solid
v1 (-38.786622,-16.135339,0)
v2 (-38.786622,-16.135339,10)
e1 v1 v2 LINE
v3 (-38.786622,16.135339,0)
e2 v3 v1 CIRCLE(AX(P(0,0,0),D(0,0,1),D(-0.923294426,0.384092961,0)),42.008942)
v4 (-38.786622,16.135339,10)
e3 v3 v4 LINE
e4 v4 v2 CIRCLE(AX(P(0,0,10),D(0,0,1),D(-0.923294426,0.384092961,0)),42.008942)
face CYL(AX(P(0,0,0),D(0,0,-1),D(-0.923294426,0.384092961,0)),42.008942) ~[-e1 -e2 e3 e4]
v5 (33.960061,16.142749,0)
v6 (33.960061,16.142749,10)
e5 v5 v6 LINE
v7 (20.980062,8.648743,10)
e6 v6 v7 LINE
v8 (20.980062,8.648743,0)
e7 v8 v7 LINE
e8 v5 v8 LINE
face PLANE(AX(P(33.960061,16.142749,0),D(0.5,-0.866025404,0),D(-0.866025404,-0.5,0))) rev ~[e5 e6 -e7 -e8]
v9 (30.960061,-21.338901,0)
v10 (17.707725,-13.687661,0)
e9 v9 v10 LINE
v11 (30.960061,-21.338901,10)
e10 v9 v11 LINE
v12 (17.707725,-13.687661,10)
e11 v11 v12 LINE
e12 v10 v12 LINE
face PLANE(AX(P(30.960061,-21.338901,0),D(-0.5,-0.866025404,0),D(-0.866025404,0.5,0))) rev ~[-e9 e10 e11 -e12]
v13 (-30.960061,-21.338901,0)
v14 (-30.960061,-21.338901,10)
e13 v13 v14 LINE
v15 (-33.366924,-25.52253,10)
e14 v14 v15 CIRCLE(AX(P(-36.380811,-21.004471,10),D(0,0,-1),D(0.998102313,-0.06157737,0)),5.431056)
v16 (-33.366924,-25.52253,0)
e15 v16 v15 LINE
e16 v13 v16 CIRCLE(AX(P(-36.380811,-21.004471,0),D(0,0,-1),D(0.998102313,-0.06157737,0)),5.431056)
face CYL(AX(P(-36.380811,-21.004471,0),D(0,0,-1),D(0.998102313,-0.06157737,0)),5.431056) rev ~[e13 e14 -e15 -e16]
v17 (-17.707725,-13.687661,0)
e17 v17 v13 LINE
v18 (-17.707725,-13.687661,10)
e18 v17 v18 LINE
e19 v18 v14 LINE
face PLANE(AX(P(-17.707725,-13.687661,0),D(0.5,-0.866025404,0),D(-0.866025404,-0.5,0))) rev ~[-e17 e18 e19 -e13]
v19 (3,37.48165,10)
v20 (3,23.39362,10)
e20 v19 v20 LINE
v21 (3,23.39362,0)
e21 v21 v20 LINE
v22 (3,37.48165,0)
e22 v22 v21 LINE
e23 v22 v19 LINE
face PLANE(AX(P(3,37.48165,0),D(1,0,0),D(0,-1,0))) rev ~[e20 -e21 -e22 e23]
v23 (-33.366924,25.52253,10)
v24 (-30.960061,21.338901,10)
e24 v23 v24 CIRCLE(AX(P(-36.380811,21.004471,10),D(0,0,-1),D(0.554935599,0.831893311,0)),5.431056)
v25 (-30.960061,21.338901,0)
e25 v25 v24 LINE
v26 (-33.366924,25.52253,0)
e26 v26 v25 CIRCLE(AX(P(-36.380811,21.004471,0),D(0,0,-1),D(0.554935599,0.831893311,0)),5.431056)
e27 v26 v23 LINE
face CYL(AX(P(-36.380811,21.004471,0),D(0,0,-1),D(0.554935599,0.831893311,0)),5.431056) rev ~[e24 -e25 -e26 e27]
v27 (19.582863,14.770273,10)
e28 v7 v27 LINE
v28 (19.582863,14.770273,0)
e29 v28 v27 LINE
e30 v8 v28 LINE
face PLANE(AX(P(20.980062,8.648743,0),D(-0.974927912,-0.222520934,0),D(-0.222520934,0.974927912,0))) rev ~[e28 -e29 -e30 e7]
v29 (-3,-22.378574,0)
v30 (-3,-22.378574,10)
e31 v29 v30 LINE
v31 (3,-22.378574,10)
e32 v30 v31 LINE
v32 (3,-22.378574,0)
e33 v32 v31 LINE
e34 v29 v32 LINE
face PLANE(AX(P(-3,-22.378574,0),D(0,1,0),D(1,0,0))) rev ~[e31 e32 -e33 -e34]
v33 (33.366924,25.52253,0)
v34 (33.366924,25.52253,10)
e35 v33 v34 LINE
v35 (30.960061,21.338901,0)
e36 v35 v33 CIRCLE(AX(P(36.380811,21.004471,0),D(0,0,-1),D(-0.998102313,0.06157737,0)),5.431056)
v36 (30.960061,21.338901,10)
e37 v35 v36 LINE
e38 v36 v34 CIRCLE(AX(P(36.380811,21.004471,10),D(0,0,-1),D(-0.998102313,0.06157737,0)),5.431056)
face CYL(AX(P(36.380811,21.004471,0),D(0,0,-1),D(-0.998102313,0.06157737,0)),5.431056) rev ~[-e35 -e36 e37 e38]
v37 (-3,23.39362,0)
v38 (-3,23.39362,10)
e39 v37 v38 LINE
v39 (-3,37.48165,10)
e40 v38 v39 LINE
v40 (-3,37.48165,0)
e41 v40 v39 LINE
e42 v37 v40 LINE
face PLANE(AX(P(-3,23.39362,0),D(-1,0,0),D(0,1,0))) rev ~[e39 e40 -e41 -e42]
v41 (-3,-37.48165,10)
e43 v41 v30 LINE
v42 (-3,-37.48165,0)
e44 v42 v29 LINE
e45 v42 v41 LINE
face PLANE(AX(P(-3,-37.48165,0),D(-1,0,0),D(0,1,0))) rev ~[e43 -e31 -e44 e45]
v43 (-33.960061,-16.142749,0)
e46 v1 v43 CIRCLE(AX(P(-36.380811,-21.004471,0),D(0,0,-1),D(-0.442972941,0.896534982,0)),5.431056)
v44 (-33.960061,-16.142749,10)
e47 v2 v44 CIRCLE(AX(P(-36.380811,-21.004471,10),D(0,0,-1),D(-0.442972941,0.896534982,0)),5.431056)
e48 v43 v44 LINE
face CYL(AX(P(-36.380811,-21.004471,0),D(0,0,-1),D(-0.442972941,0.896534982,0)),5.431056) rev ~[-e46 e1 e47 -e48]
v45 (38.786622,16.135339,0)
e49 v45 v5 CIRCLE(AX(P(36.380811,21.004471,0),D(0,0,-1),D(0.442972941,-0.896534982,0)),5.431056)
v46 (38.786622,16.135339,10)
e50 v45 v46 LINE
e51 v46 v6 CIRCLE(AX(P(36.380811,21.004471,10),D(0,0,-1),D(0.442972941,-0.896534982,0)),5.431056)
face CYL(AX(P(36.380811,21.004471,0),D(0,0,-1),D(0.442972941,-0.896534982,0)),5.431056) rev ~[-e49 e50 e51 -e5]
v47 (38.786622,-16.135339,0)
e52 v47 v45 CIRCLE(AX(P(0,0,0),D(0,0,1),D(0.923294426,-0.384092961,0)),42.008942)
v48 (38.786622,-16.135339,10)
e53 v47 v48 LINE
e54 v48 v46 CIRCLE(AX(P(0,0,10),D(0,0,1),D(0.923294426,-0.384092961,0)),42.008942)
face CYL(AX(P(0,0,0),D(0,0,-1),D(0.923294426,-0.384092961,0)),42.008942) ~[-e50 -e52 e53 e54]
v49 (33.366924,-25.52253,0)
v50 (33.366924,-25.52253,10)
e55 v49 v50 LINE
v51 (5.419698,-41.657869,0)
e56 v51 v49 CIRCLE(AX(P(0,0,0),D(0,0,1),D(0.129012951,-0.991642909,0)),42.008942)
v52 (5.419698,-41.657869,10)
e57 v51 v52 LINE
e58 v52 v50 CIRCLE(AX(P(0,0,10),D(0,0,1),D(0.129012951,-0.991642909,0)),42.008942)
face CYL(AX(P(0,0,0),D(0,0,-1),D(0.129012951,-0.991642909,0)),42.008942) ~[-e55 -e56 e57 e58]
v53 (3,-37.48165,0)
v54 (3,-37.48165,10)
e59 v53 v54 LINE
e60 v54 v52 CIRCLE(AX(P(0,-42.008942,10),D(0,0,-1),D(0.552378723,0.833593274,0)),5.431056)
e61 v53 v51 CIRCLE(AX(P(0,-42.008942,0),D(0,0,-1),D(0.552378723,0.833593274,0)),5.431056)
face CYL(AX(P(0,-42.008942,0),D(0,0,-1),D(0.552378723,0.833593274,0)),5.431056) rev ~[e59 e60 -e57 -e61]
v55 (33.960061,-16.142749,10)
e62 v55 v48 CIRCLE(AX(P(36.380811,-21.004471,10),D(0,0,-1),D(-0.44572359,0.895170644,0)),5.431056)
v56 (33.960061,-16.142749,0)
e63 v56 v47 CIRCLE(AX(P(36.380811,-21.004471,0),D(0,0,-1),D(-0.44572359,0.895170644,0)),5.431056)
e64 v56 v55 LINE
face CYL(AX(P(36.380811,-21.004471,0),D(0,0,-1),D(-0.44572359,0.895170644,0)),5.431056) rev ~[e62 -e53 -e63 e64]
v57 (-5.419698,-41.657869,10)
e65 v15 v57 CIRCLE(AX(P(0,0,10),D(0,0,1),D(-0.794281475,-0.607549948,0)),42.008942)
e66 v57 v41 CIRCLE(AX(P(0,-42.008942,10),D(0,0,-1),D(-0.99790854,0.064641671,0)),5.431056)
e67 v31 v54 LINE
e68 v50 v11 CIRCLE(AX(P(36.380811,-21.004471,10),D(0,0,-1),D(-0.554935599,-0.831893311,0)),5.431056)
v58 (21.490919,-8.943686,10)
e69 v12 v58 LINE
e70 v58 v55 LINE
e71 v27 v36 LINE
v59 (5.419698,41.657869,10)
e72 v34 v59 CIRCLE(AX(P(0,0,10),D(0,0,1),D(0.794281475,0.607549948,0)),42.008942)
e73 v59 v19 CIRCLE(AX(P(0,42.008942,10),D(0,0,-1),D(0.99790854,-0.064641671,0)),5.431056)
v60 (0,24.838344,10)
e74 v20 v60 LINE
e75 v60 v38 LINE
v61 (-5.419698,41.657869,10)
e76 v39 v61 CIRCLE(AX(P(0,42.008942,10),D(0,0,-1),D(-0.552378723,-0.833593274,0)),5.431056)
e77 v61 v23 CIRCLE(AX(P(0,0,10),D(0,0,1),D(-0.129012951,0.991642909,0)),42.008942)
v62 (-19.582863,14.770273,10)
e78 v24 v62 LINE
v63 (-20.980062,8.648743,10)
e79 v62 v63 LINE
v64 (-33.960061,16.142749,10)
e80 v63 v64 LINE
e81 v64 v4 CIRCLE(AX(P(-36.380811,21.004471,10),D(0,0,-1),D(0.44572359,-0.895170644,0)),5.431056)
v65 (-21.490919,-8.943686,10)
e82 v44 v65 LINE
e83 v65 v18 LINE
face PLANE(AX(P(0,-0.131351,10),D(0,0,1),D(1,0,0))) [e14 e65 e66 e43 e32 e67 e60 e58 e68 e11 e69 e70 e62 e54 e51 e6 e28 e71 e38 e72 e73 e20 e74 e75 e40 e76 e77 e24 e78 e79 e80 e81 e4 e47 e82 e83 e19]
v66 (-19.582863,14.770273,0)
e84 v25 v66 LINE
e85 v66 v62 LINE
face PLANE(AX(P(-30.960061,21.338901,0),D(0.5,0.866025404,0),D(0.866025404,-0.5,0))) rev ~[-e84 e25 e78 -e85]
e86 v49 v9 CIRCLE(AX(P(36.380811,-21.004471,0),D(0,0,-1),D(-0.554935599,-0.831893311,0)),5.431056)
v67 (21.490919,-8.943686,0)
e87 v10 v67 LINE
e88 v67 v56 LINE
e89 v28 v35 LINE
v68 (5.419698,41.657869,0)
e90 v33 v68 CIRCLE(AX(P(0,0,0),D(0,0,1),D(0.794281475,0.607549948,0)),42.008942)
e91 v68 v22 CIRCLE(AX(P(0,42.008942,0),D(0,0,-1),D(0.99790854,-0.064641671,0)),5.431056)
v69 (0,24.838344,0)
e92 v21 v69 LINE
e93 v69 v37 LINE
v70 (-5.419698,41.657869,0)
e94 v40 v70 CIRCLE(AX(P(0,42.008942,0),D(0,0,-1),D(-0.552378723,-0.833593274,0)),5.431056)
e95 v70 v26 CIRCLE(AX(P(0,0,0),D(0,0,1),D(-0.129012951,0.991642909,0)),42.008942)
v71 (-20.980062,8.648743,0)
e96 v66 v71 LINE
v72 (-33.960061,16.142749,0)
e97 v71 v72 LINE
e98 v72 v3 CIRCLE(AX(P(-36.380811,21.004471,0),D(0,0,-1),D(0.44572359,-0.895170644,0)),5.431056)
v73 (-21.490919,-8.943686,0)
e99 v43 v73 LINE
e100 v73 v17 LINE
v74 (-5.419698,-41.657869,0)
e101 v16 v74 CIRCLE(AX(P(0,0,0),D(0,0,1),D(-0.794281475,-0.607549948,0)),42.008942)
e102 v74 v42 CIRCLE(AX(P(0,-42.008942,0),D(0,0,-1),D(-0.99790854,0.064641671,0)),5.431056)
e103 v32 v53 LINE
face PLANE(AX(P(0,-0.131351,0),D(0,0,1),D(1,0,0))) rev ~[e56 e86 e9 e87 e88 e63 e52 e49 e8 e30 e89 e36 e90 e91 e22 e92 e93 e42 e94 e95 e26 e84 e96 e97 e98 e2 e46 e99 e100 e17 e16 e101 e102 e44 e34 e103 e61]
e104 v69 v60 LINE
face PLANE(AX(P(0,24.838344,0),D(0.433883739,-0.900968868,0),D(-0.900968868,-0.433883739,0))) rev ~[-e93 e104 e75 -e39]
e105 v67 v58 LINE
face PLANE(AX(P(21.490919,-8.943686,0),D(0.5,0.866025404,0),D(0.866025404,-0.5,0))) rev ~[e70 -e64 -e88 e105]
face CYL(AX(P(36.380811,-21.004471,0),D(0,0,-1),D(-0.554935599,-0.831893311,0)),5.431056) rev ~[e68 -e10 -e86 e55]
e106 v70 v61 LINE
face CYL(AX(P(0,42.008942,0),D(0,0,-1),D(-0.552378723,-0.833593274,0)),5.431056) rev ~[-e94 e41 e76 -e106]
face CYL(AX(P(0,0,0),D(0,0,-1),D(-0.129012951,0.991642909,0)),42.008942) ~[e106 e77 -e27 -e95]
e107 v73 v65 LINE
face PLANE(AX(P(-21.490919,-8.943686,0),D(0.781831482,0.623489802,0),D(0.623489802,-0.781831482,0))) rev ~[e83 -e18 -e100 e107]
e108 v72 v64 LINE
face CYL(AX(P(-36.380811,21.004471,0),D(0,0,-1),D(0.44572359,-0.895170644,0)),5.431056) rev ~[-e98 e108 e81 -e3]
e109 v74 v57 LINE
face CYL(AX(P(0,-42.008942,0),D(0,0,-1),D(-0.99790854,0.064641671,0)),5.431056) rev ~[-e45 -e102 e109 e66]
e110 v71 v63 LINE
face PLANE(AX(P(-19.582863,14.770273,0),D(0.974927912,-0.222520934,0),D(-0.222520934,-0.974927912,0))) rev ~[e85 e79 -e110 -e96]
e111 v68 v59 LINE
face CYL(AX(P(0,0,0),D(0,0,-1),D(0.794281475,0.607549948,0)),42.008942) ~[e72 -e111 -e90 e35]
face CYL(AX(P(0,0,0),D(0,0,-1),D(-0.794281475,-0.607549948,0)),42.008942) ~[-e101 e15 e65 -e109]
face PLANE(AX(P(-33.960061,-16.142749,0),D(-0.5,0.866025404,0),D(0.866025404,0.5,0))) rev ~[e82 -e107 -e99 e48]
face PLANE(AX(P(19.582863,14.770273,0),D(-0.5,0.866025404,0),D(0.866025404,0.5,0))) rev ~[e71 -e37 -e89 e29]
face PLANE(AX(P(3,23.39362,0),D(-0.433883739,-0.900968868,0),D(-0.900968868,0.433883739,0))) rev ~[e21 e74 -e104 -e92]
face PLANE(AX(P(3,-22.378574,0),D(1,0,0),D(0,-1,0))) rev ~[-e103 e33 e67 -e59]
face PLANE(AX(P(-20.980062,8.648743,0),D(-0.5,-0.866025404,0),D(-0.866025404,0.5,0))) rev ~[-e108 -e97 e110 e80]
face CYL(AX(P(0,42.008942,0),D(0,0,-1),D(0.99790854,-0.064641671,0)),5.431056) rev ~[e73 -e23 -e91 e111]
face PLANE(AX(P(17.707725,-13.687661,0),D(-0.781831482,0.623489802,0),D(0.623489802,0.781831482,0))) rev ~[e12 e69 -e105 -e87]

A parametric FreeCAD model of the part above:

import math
import FreeCAD as App
import Part
import Sketcher
from FreeCAD import Vector
Q = App.Units.Quantity

doc = App.newDocument("Part")
body = doc.addObject("PartDesign::Body", "Body")

# Sketch on XY plane
sketch1 = body.newObject("Sketcher::SketchObject", "Sketch")
sketch1.AttachmentSupport = (doc.getObject("XY_Plane"), [""])
sketch1.MapMode = "FlatFace"
sketch1.addGeometry(Part.LineSegment(Vector(19.6, 14.8, 0), Vector(31, 21.3, 0)), False)
sketch1.addGeometry(Part.ArcOfCircle(Part.Circle(Vector(36.4, 21, 0), Vector(0, 0, 1), 5.4), math.radians(124), math.radians(176)), False)
sketch1.addGeometry(Part.ArcOfCircle(Part.Circle(Vector(0, 0, 0), Vector(0, 0, 1), 42), math.radians(37), math.radians(83)), False)
sketch1.addGeometry(Part.ArcOfCircle(Part.Circle(Vector(0, 42, 0), Vector(0, 0, 1), 5.4), math.radians(-56), math.radians(-4)), False)
sketch1.addGeometry(Part.LineSegment(Vector(3, 37.5, 0), Vector(3, 23.4, 0)), False)
sketch1.addGeometry(Part.LineSegment(Vector(3, 23.4, 0), Vector(0, 24.8, 0)), False)
sketch1.addGeometry(Part.LineSegment(Vector(0, 24.8, 0), Vector(-3, 23.4, 0)), False)
sketch1.addGeometry(Part.LineSegment(Vector(-3, 23.4, 0), Vector(-3, 37.5, 0)), False)
sketch1.addGeometry(Part.ArcOfCircle(Part.Circle(Vector(0, 42, 0), Vector(0, 0, 1), 5.4), math.radians(-176), math.radians(-124)), False)
sketch1.addGeometry(Part.ArcOfCircle(Part.Circle(Vector(0, 0, 0), Vector(0, 0, 1), 42), math.radians(97), math.radians(143)), False)
sketch1.addGeometry(Part.ArcOfCircle(Part.Circle(Vector(-36.4, 21, 0), Vector(0, 0, 1), 5.4), math.radians(4), math.radians(56)), False)
sketch1.addGeometry(Part.LineSegment(Vector(-31, 21.3, 0), Vector(-19.6, 14.8, 0)), False)
sketch1.addGeometry(Part.LineSegment(Vector(-19.6, 14.8, 0), Vector(-21, 8.6, 0)), False)
sketch1.addGeometry(Part.LineSegment(Vector(-21, 8.6, 0), Vector(-34, 16.1, 0)), False)
sketch1.addGeometry(Part.ArcOfCircle(Part.Circle(Vector(-36.4, 21, 0), Vector(0, 0, 1), 5.4), math.radians(-116), math.radians(-64)), False)
sketch1.addGeometry(Part.ArcOfCircle(Part.Circle(Vector(0, 0, 0), Vector(0, 0, 1), 42), math.radians(157), math.radians(203)), False)
sketch1.addGeometry(Part.ArcOfCircle(Part.Circle(Vector(-36.4, -21, 0), Vector(0, 0, 1), 5.4), math.radians(64), math.radians(116)), False)
sketch1.addGeometry(Part.LineSegment(Vector(-34, -16.1, 0), Vector(-21.5, -8.9, 0)), False)
sketch1.addGeometry(Part.LineSegment(Vector(-21.5, -8.9, 0), Vector(-17.7, -13.7, 0)), False)
sketch1.addGeometry(Part.LineSegment(Vector(-17.7, -13.7, 0), Vector(-31, -21.3, 0)), False)
sketch1.addGeometry(Part.ArcOfCircle(Part.Circle(Vector(-36.4, -21, 0), Vector(0, 0, 1), 5.4), math.radians(-56), math.radians(-4)), False)
sketch1.addGeometry(Part.ArcOfCircle(Part.Circle(Vector(0, 0, 0), Vector(0, 0, 1), 42), math.radians(-143), math.radians(-97)), False)
sketch1.addGeometry(Part.ArcOfCircle(Part.Circle(Vector(0, -42, 0), Vector(0, 0, 1), 5.4), math.radians(124), math.radians(176)), False)
sketch1.addGeometry(Part.LineSegment(Vector(-3, -37.5, 0), Vector(-3, -22.4, 0)), False)
sketch1.addGeometry(Part.LineSegment(Vector(-3, -22.4, 0), Vector(3, -22.4, 0)), False)
sketch1.addGeometry(Part.LineSegment(Vector(3, -22.4, 0), Vector(3, -37.5, 0)), False)
sketch1.addGeometry(Part.ArcOfCircle(Part.Circle(Vector(0, -42, 0), Vector(0, 0, 1), 5.4), math.radians(4), math.radians(56)), False)
sketch1.addGeometry(Part.ArcOfCircle(Part.Circle(Vector(0, 0, 0), Vector(0, 0, 1), 42), math.radians(-83), math.radians(-37)), False)
sketch1.addGeometry(Part.ArcOfCircle(Part.Circle(Vector(36.4, -21, 0), Vector(0, 0, 1), 5.4), math.radians(-176), math.radians(-124)), False)
sketch1.addGeometry(Part.LineSegment(Vector(31, -21.3, 0), Vector(17.7, -13.7, 0)), False)
sketch1.addGeometry(Part.LineSegment(Vector(17.7, -13.7, 0), Vector(21.5, -8.9, 0)), False)
sketch1.addGeometry(Part.LineSegment(Vector(21.5, -8.9, 0), Vector(34, -16.1, 0)), False)
sketch1.addGeometry(Part.ArcOfCircle(Part.Circle(Vector(36.4, -21, 0), Vector(0, 0, 1), 5.4), math.radians(64), math.radians(116)), False)
sketch1.addGeometry(Part.ArcOfCircle(Part.Circle(Vector(0, 0, 0), Vector(0, 0, 1), 42), math.radians(-23), math.radians(23)), False)
sketch1.addGeometry(Part.ArcOfCircle(Part.Circle(Vector(36.4, 21, 0), Vector(0, 0, 1), 5.4), math.radians(-116), math.radians(-64)), False)
sketch1.addGeometry(Part.LineSegment(Vector(34, 16.1, 0), Vector(21, 8.6, 0)), False)
sketch1.addGeometry(Part.LineSegment(Vector(21, 8.6, 0), Vector(19.6, 14.8, 0)), False)
sketch1.addConstraint(Sketcher.Constraint("Coincident", 0, 2, 1, 2))
sketch1.addConstraint(Sketcher.Constraint("Coincident", 1, 1, 2, 1))
sketch1.addConstraint(Sketcher.Constraint("Coincident", 2, 2, 3, 2))
sketch1.addConstraint(Sketcher.Constraint("Coincident", 3, 1, 4, 1))
sketch1.addConstraint(Sketcher.Constraint("Coincident", 4, 2, 5, 1))
sketch1.addConstraint(Sketcher.Constraint("Coincident", 5, 2, 6, 1))
sketch1.addConstraint(Sketcher.Constraint("Coincident", 6, 2, 7, 1))
sketch1.addConstraint(Sketcher.Constraint("Coincident", 7, 2, 8, 2))
sketch1.addConstraint(Sketcher.Constraint("Coincident", 8, 1, 9, 1))
sketch1.addConstraint(Sketcher.Constraint("Coincident", 9, 2, 10, 2))
sketch1.addConstraint(Sketcher.Constraint("Coincident", 10, 1, 11, 1))
sketch1.addConstraint(Sketcher.Constraint("Coincident", 11, 2, 12, 1))
sketch1.addConstraint(Sketcher.Constraint("Coincident", 12, 2, 13, 1))
sketch1.addConstraint(Sketcher.Constraint("Coincident", 13, 2, 14, 2))
sketch1.addConstraint(Sketcher.Constraint("Coincident", 14, 1, 15, 1))
sketch1.addConstraint(Sketcher.Constraint("Coincident", 15, 2, 16, 2))
sketch1.addConstraint(Sketcher.Constraint("Coincident", 16, 1, 17, 1))
sketch1.addConstraint(Sketcher.Constraint("Coincident", 17, 2, 18, 1))
sketch1.addConstraint(Sketcher.Constraint("Coincident", 18, 2, 19, 1))
sketch1.addConstraint(Sketcher.Constraint("Coincident", 19, 2, 20, 2))
sketch1.addConstraint(Sketcher.Constraint("Coincident", 20, 1, 21, 1))
sketch1.addConstraint(Sketcher.Constraint("Coincident", 21, 2, 22, 2))
sketch1.addConstraint(Sketcher.Constraint("Coincident", 22, 1, 23, 1))
sketch1.addConstraint(Sketcher.Constraint("Coincident", 23, 2, 24, 1))
sketch1.addConstraint(Sketcher.Constraint("Coincident", 24, 2, 25, 1))
sketch1.addConstraint(Sketcher.Constraint("Coincident", 25, 2, 26, 2))
sketch1.addConstraint(Sketcher.Constraint("Coincident", 26, 1, 27, 1))
sketch1.addConstraint(Sketcher.Constraint("Coincident", 27, 2, 28, 2))
sketch1.addConstraint(Sketcher.Constraint("Coincident", 28, 1, 29, 1))
sketch1.addConstraint(Sketcher.Constraint("Coincident", 29, 2, 30, 1))
sketch1.addConstraint(Sketcher.Constraint("Coincident", 30, 2, 31, 1))
sketch1.addConstraint(Sketcher.Constraint("Coincident", 31, 2, 32, 2))
sketch1.addConstraint(Sketcher.Constraint("Coincident", 32, 1, 33, 1))
sketch1.addConstraint(Sketcher.Constraint("Coincident", 33, 2, 34, 2))
sketch1.addConstraint(Sketcher.Constraint("Coincident", 34, 1, 35, 1))
sketch1.addConstraint(Sketcher.Constraint("Coincident", 35, 2, 36, 1))
sketch1.addConstraint(Sketcher.Constraint("Coincident", 36, 2, 0, 1))
sketch1.addConstraint(Sketcher.Constraint("Vertical", 4))
sketch1.addConstraint(Sketcher.Constraint("Vertical", 7))
sketch1.addConstraint(Sketcher.Constraint("Vertical", 23))
sketch1.addConstraint(Sketcher.Constraint("Horizontal", 24))
sketch1.addConstraint(Sketcher.Constraint("Vertical", 25))
sketch1.addConstraint(Sketcher.Constraint("Coincident", 2, 3, -1, 1))
sketch1.addConstraint(Sketcher.Constraint("Coincident", 9, 3, -1, 1))
sketch1.addConstraint(Sketcher.Constraint("Coincident", 15, 3, -1, 1))
sketch1.addConstraint(Sketcher.Constraint("Coincident", 21, 3, -1, 1))
sketch1.addConstraint(Sketcher.Constraint("Coincident", 27, 3, -1, 1))
sketch1.addConstraint(Sketcher.Constraint("Coincident", 33, 3, -1, 1))
sketch1.addConstraint(Sketcher.Constraint("Coincident", 8, 3, 3, 3))
sketch1.addConstraint(Sketcher.Constraint("Coincident", 14, 3, 10, 3))
sketch1.addConstraint(Sketcher.Constraint("Coincident", 20, 3, 16, 3))
sketch1.addConstraint(Sketcher.Constraint("Coincident", 26, 3, 22, 3))
sketch1.addConstraint(Sketcher.Constraint("Coincident", 32, 3, 28, 3))
sketch1.addConstraint(Sketcher.Constraint("Coincident", 34, 3, 1, 3))
sketch1.addConstraint(Sketcher.Constraint("Equal", 1, 3))
sketch1.addConstraint(Sketcher.Constraint("Equal", 3, 8))
sketch1.addConstraint(Sketcher.Constraint("Equal", 2, 9))
sketch1.addConstraint(Sketcher.Constraint("Equal", 8, 10))
sketch1.addConstraint(Sketcher.Constraint("Equal", 10, 14))
sketch1.addConstraint(Sketcher.Constraint("Equal", 9, 15))
sketch1.addConstraint(Sketcher.Constraint("Equal", 14, 16))
sketch1.addConstraint(Sketcher.Constraint("Equal", 16, 20))
sketch1.addConstraint(Sketcher.Constraint("Equal", 15, 21))
sketch1.addConstraint(Sketcher.Constraint("Equal", 20, 22))
sketch1.addConstraint(Sketcher.Constraint("Equal", 22, 26))
sketch1.addConstraint(Sketcher.Constraint("Equal", 21, 27))
sketch1.addConstraint(Sketcher.Constraint("Equal", 26, 28))
sketch1.addConstraint(Sketcher.Constraint("Equal", 28, 32))
sketch1.addConstraint(Sketcher.Constraint("Equal", 27, 33))
sketch1.addConstraint(Sketcher.Constraint("Equal", 32, 34))
sketch1.addConstraint(Sketcher.Constraint("Symmetric", 1, 3, 16, 3, -1, 1))
sketch1.addConstraint(Sketcher.Constraint("Symmetric", 3, 3, 22, 3, -1, 1))
sketch1.addConstraint(Sketcher.Constraint("Symmetric", 10, 3, 28, 3, -1, 1))
sketch1.addConstraint(Sketcher.Constraint("Symmetric", 1, 3, 10, 3, -2))
sketch1.addConstraint(Sketcher.Constraint("Symmetric", 4, 2, 6, 2, -2))
sketch1.addConstraint(Sketcher.Constraint("Symmetric", 22, 1, 25, 2, -2))
sketch1.addConstraint(Sketcher.Constraint("Symmetric", 18, 2, 29, 2, -2))
sketch1.addConstraint(Sketcher.Constraint("Symmetric", 17, 2, 30, 2, -2))
sketch1.addConstraint(Sketcher.Constraint("Symmetric", 12, 2, 35, 2, -2))
sketch1.addConstraint(Sketcher.Constraint("Symmetric", 11, 2, 36, 2, -2))
sketch1.addConstraint(Sketcher.Constraint("PointOnObject", 5, 2, -2))
sketch1.addConstraint(Sketcher.Constraint("Parallel", 11, 13))
sketch1.addConstraint(Sketcher.Constraint("Parallel", 0, 17))
sketch1.addConstraint(Sketcher.Constraint("Parallel", 17, 19))
sketch1.addConstraint(Sketcher.Constraint("Parallel", 13, 29))
sketch1.addConstraint(Sketcher.Constraint("Parallel", 29, 31))
sketch1.addConstraint(Sketcher.Constraint("Parallel", 19, 35))
sketch1.addConstraint(Sketcher.Constraint("Horizontal", 0, 2, 10, 1))
sketch1.addConstraint(Sketcher.Constraint("Vertical", 13, 2, 16, 1))
sketch1.addConstraint(Sketcher.Constraint("Vertical", 10, 1, 19, 2))
sketch1.addConstraint(Sketcher.Constraint("Vertical", 7, 2, 22, 1))
sketch1.addConstraint(Sketcher.Constraint("DistanceX", 24, 1, 24, 2, Q("6 mm")))
sketch1.addConstraint(Sketcher.Constraint("Angle", 0, Q("30 deg")))
sketch1.addConstraint(Sketcher.Constraint("DistanceX", 13, 2, 10, 1, Q("3 mm")))
sketch1.addConstraint(Sketcher.Constraint("Radius", 2, Q("42.008942 mm")))
sketch1.addConstraint(Sketcher.Constraint("DistanceX", 10, 1, 12, 2, Q("9.979999 mm")))
sketch1.addConstraint(Sketcher.Constraint("Radius", 1, Q("5.431056 mm")))
sketch1.addConstraint(Sketcher.Constraint("DistanceY", 4, 2, 4, 1, Q("14.08803 mm")))
sketch1.addConstraint(Sketcher.Constraint("DistanceY", -1, 1, 0, 2, Q("21.338901 mm")))
sketch1.addConstraint(Sketcher.Constraint("DistanceY", 1, 3, 2, 2, Q("20.653398 mm")))
sketch1.addConstraint(Sketcher.Constraint("DistanceY", 5, 2, 3, 3, Q("17.170598 mm")))
sketch1.addConstraint(Sketcher.Constraint("DistanceX", 10, 1, 11, 2, Q("11.377198 mm")))
sketch1.addConstraint(Sketcher.Constraint("DistanceX", 29, 2, 27, 2, Q("15.659199 mm")))
sketch1.addConstraint(Sketcher.Constraint("Distance", 18, Q("6.067772 mm")))
sketch1.addConstraint(Sketcher.Constraint("Distance", 19, Q("15.302479 mm")))
sketch1.addConstraint(Sketcher.Constraint("DistanceY", 23, 1, 23, 2, Q("15.103075 mm")))
sketch1.addConstraint(Sketcher.Constraint("DistanceY", -1, 1, 3, 3, Q("42.008942 mm")))
pad1 = body.newObject("PartDesign::Pad", "Pad")
pad1.Profile = sketch1
pad1.Length = 10

doc.recompute()
